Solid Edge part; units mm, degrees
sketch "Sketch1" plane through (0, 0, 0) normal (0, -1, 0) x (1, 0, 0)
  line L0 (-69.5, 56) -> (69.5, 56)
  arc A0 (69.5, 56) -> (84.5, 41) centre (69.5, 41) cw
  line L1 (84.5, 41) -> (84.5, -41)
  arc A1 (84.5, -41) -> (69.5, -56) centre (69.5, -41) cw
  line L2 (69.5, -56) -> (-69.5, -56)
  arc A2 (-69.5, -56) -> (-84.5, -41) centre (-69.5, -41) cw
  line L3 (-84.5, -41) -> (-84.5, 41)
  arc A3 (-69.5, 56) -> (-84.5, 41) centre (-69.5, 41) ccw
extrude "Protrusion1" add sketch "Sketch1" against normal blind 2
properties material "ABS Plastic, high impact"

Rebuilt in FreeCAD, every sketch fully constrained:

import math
import FreeCAD as App
import Part
import Sketcher
from FreeCAD import Vector
Q = App.Units.Quantity

doc = App.newDocument("Part")
body = doc.addObject("PartDesign::Body", "Body")

# Sketch on XZ plane
sketch1 = body.newObject("Sketcher::SketchObject", "Sketch")
sketch1.AttachmentSupport = (doc.getObject("XZ_Plane"), [""])
sketch1.MapMode = "FlatFace"
sketch1.addGeometry([
    Part.LineSegment(Vector(70, 56, 0), Vector(-70, 56, 0)),  # 0
    Part.ArcOfCircle(Part.Circle(Vector(-70, 41, 0), Vector(0, 0, 1), 15), math.radians(90), math.radians(180)),  # 1
    Part.LineSegment(Vector(-84, 41, 0), Vector(-84, -41, 0)),  # 2
    Part.ArcOfCircle(Part.Circle(Vector(-70, -41, 0), Vector(0, 0, 1), 15), math.radians(180), math.radians(270)),  # 3
    Part.LineSegment(Vector(-70, -56, 0), Vector(70, -56, 0)),  # 4
    Part.ArcOfCircle(Part.Circle(Vector(70, -41, 0), Vector(0, 0, 1), 15), math.radians(-90), math.radians(0)),  # 5
    Part.LineSegment(Vector(84, -41, 0), Vector(84, 41, 0)),  # 6
    Part.ArcOfCircle(Part.Circle(Vector(70, 41, 0), Vector(0, 0, 1), 15), math.radians(0), math.radians(90)),  # 7
], False)
sketch1.addConstraint([
    Sketcher.Constraint("Tangent", 0, 2, 1, 1),
    Sketcher.Constraint("Tangent", 1, 2, 2, 1),
    Sketcher.Constraint("Tangent", 2, 2, 3, 1),
    Sketcher.Constraint("Tangent", 3, 2, 4, 1),
    Sketcher.Constraint("Tangent", 4, 2, 5, 1),
    Sketcher.Constraint("Tangent", 5, 2, 6, 1),
    Sketcher.Constraint("Tangent", 6, 2, 7, 1),
    Sketcher.Constraint("Tangent", 7, 2, 0, 1),
    Sketcher.Constraint("Horizontal", 0),
    Sketcher.Constraint("Vertical", 2),
    Sketcher.Constraint("Horizontal", 4),
    Sketcher.Constraint("Vertical", 6),
    Sketcher.Constraint("Equal", 1, 3),
    Sketcher.Constraint("Equal", 3, 5),
    Sketcher.Constraint("Equal", 5, 7),
    Sketcher.Constraint("Symmetric", 1, 3, 5, 3, -1, 1),
    Sketcher.Constraint("Radius", 1, Q("15 mm")),
    Sketcher.Constraint("DistanceX", 0, 2, 0, 1, Q("139 mm")),
    Sketcher.Constraint("DistanceY", 2, 2, 2, 1, Q("82 mm")),
])
pad1 = body.newObject("PartDesign::Pad", "Pad")
pad1.Profile = sketch1
pad1.Length = 2
pad1.Reversed = True

doc.recompute()
